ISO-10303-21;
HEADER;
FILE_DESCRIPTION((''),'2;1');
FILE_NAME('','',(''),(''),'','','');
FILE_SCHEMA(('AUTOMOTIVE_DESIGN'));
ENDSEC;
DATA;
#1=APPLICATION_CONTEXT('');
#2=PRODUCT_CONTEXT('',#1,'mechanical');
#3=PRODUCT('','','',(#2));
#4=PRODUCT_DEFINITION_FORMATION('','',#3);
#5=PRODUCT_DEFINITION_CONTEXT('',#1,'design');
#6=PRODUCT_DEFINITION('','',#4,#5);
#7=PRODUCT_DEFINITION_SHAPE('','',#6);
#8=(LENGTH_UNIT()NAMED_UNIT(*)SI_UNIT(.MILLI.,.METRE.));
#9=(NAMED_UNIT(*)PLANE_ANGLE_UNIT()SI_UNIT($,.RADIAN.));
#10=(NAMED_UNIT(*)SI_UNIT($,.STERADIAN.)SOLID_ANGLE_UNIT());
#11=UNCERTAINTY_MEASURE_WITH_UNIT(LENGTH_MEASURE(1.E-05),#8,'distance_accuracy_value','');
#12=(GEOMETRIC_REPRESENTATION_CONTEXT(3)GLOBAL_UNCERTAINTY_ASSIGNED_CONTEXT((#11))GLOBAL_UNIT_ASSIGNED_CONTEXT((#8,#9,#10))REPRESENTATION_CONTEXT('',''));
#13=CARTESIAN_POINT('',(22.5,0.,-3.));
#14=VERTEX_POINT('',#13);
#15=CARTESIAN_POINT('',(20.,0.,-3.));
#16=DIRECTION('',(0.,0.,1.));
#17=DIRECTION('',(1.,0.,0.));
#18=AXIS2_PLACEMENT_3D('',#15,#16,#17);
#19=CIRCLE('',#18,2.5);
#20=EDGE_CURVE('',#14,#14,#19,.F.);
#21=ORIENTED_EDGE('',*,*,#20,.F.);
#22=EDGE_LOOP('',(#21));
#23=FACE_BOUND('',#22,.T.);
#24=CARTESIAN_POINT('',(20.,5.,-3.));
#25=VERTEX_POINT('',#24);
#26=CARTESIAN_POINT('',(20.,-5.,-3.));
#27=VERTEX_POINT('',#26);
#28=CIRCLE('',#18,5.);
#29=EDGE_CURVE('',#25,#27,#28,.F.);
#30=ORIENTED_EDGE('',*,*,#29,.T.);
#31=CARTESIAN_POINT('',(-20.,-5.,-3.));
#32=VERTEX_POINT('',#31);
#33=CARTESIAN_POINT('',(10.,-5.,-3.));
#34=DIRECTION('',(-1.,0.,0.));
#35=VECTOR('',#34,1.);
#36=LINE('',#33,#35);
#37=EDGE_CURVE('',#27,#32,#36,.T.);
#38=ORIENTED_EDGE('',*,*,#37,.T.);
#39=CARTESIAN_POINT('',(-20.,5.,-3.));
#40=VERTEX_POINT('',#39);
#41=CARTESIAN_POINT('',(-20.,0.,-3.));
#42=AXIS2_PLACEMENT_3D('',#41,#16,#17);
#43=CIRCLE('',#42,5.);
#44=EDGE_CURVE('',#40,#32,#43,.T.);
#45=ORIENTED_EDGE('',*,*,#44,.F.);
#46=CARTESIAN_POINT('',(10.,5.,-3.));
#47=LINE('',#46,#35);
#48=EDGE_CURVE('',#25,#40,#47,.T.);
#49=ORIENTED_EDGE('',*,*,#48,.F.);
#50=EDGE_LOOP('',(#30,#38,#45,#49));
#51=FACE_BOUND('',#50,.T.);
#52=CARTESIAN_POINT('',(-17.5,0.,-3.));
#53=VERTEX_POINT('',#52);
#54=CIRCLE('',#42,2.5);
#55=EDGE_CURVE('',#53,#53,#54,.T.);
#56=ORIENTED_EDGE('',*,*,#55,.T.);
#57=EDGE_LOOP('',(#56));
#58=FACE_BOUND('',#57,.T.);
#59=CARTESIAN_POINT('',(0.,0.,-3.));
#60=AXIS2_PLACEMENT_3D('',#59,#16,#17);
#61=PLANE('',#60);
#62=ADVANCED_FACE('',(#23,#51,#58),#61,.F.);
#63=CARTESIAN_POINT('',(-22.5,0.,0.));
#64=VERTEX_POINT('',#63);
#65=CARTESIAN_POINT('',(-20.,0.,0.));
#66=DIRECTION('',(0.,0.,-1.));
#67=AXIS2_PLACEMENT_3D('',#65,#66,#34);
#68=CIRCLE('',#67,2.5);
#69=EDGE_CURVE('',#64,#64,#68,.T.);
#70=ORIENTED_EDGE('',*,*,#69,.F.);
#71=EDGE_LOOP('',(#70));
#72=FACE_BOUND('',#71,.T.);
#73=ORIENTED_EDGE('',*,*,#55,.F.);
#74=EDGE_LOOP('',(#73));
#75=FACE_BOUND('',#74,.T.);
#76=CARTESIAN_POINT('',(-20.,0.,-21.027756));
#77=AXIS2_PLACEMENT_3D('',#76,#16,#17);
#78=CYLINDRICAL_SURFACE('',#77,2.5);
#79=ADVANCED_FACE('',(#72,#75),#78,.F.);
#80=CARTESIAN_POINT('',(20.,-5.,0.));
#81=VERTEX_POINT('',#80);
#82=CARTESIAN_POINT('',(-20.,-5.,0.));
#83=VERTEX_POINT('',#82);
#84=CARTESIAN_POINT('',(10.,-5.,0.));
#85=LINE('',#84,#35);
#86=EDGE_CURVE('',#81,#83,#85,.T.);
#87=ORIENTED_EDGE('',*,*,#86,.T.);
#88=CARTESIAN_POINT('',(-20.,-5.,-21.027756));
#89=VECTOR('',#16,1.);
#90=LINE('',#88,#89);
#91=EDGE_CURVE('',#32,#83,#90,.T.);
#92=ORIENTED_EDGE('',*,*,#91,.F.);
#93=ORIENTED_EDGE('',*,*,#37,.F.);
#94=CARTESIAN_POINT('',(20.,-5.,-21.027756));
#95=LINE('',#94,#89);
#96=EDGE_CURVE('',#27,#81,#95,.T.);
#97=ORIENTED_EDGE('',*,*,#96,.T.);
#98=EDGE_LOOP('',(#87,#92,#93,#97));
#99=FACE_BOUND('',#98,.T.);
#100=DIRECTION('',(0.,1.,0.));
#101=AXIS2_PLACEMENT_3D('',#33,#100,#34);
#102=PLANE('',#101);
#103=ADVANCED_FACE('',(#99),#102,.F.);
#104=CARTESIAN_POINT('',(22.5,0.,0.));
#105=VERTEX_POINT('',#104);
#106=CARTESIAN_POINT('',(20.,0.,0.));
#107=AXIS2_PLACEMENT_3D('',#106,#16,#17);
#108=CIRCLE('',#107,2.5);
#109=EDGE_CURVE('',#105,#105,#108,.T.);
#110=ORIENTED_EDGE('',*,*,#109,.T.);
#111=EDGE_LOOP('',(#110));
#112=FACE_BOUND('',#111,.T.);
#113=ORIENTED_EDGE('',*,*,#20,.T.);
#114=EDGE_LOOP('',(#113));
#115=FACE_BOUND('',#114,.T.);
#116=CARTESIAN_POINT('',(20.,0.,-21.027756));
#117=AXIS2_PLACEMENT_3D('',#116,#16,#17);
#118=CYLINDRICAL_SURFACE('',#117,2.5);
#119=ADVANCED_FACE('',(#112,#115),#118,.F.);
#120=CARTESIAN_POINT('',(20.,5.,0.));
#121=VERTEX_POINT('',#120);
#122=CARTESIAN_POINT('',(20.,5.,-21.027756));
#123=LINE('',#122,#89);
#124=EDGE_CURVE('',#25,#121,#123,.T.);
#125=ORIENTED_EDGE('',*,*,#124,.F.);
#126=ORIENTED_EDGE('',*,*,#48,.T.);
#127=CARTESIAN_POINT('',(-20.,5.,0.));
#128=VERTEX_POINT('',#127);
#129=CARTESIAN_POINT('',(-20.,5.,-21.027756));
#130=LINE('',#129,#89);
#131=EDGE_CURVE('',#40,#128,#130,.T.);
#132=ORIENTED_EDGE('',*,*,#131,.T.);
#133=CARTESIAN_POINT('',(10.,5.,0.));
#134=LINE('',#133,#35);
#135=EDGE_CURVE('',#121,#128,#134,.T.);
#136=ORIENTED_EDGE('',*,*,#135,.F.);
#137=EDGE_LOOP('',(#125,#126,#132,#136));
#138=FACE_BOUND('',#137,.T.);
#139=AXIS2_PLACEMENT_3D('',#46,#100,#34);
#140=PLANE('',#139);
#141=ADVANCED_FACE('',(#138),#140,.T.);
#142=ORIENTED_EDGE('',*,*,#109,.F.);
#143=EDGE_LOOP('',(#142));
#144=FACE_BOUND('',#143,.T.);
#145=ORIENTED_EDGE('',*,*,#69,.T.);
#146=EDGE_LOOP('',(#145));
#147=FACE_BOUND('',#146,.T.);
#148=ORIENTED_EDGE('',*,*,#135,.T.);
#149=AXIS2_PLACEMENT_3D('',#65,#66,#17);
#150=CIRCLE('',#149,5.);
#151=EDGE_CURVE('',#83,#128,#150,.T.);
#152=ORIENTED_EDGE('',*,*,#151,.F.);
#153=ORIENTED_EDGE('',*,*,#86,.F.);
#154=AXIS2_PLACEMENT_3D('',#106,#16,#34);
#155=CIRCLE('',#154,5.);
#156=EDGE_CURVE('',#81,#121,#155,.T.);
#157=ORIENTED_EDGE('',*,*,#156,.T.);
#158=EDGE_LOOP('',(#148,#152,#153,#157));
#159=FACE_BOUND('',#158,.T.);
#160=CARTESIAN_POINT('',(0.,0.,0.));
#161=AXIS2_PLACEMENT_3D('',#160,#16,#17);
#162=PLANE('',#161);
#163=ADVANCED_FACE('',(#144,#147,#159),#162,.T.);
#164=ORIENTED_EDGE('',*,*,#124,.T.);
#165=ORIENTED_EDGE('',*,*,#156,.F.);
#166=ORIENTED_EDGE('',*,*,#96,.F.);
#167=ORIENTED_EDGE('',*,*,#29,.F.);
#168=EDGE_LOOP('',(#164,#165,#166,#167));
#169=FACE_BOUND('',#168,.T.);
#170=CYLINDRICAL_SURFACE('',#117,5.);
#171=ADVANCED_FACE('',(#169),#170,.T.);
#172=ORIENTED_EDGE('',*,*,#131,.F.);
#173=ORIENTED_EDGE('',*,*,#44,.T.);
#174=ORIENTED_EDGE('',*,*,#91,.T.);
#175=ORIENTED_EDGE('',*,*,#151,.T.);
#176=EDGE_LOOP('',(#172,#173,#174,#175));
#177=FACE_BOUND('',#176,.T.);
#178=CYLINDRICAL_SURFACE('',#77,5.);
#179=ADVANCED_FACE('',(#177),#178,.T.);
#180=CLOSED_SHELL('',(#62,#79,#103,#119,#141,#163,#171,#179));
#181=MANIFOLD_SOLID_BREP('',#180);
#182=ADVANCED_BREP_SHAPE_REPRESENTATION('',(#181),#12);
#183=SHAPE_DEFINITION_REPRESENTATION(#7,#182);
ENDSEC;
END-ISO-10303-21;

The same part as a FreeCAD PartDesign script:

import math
import FreeCAD as App
import Part
import Sketcher


def add_polygon(sketch, points):
    """Adds a closed chain of lines whose ends are joined by coincident constraints."""
    first, n = sketch.GeometryCount, len(points)
    for a, b in zip(points, points[1:] + points[:1]):
        sketch.addGeometry(Part.LineSegment(App.Vector(*a, 0), App.Vector(*b, 0)), False)
    for i in range(n):
        sketch.addConstraint(Sketcher.Constraint("Coincident", first + i, 2, first + (i + 1) % n, 1))

doc = App.newDocument("Part")
params = doc.addObject("Spreadsheet::Sheet", "Params")
for row, (alias, value) in enumerate([
    ("sketch1_width", "20 mm"),
    ("sketch1_height", "10 mm"),
    ("pad1_length", "3 mm"),
    ("sketch2_diameter", "5 mm"),
    ("sketch2_radius", "5 mm"),
    ("pad2_length", "3 mm"),
], start=1):
    params.set(f"A{row}", alias)
    params.set(f"B{row}", "=" + value)
    params.setAlias(f"B{row}", alias)

body = doc.addObject("PartDesign::Body", "Body")

# Sketch on XY plane
sketch1 = doc.addObject("Sketcher::SketchObject", "Sketch")
body.addObject(sketch1)
sketch1.AttachmentSupport = (doc.XY_Plane, [""])
sketch1.MapMode = "FlatFace"
add_polygon(sketch1, [(-10, 5), (-10, -5), (10, -5), (10, 5)])  # lines 0-3
sketch1.addConstraint([
    Sketcher.Constraint("Vertical", 0),
    Sketcher.Constraint("Horizontal", 1),
    Sketcher.Constraint("Vertical", 2),
    Sketcher.Constraint("Horizontal", 3),
    Sketcher.Constraint("Symmetric", 0, 2, 2, 2, -1, 1),
    Sketcher.Constraint("DistanceX", 1, 1, 1, 2, 20.0),
    Sketcher.Constraint("DistanceY", 0, 2, 0, 1, 10.0),
])
sketch1.setExpression("Constraints[9]", "Params.sketch1_width")
sketch1.setExpression("Constraints[10]", "Params.sketch1_height")
pad1 = doc.addObject("PartDesign::Pad", "Pad")
body.addObject(pad1)
pad1.Profile = sketch1
pad1.setExpression("Length", "Params.pad1_length")
pad1.Reversed = True

# Sketch on XY plane
sketch2 = doc.addObject("Sketcher::SketchObject", "Sketch001")
body.addObject(sketch2)
sketch2.AttachmentSupport = (doc.XY_Plane, [""])
sketch2.MapMode = "FlatFace"
sketch2.addGeometry([
    Part.LineSegment(App.Vector(20, 5, 0), App.Vector(10, 5, 0)),  # 0
    Part.LineSegment(App.Vector(10, 5, 0), App.Vector(10, -5, 0)),  # 1
    Part.LineSegment(App.Vector(10, -5, 0), App.Vector(20, -5, 0)),  # 2
    Part.ArcOfCircle(Part.Circle(App.Vector(20, 0, 0), App.Vector(0, 0, 1), 5), math.radians(-90), math.radians(90)),  # 3
    Part.Circle(App.Vector(20, 0, 0), App.Vector(0, 0, 1), 2.5),  # 4
], False)
sketch2.addConstraint([
    Sketcher.Constraint("Coincident", 0, 2, 1, 1),
    Sketcher.Constraint("Coincident", 1, 2, 2, 1),
    Sketcher.Constraint("Tangent", 2, 2, 3, 1),
    Sketcher.Constraint("Tangent", 3, 2, 0, 1),
    Sketcher.Constraint("Horizontal", 0),
    Sketcher.Constraint("Vertical", 1),
    Sketcher.Constraint("Horizontal", 2),
    Sketcher.Constraint("Coincident", 4, 3, 3, 3),
    Sketcher.Constraint("PointOnObject", 3, 3, -1),
    Sketcher.Constraint("Equal", 2, 1),
    Sketcher.Constraint("Diameter", 4, 5.0),
    Sketcher.Constraint("Radius", 3, 5.0),
    Sketcher.Constraint("DistanceX", -1, 1, 3, 3, 20.0),
])
sketch2.setExpression("Constraints[10]", "Params.sketch2_diameter")
sketch2.setExpression("Constraints[11]", "Params.sketch2_radius")
pad2 = doc.addObject("PartDesign::Pad", "Pad001")
body.addObject(pad2)
pad2.Profile = sketch2
pad2.setExpression("Length", "Params.pad2_length")
pad2.Reversed = True
doc.recompute()

mirrored = doc.addObject("PartDesign::Mirrored", "Mirrored")
body.addObject(mirrored)
mirrored.Originals = [pad1, pad2]
mirrored.MirrorPlane = (doc.YZ_Plane, [""])
body.Tip = mirrored

doc.recompute()
